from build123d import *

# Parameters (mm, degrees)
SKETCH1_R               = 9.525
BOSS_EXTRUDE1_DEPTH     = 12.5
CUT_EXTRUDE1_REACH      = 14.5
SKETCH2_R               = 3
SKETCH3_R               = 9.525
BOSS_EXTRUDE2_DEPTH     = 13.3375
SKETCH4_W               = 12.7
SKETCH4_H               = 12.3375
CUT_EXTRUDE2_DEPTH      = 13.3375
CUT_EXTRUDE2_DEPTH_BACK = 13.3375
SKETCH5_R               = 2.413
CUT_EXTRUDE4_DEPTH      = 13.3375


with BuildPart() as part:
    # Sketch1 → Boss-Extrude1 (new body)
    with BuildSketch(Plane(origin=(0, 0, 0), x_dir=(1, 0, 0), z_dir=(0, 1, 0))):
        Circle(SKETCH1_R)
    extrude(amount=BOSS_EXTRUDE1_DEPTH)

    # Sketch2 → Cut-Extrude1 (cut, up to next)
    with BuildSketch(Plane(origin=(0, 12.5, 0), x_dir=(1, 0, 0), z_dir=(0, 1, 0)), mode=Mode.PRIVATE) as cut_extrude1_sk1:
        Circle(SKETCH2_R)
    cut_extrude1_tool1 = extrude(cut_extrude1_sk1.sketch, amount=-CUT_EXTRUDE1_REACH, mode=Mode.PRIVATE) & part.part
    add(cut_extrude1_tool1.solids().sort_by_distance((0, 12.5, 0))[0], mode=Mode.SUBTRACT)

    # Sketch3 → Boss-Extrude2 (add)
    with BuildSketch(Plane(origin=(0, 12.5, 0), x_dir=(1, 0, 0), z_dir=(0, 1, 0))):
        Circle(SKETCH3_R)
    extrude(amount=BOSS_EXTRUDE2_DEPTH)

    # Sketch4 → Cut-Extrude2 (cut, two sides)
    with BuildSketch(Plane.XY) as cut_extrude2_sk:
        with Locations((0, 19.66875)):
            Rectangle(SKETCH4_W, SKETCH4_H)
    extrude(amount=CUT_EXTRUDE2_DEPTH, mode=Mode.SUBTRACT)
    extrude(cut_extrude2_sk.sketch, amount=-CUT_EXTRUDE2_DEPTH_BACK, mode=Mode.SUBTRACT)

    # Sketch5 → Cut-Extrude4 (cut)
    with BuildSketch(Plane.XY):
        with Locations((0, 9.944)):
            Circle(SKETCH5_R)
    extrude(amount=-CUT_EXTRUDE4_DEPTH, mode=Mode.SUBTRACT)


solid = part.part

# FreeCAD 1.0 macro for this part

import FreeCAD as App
import Part
import Sketcher
Q = App.Units.Quantity


def add_polygon(sketch, points):
    """Adds a closed chain of lines whose ends are joined by coincident constraints."""
    first, n = sketch.GeometryCount, len(points)
    for a, b in zip(points, points[1:] + points[:1]):
        sketch.addGeometry(Part.LineSegment(App.Vector(*a, 0), App.Vector(*b, 0)), False)
    for i in range(n):
        sketch.addConstraint(Sketcher.Constraint("Coincident", first + i, 2, first + (i + 1) % n, 1))

doc = App.newDocument("Part")
body = doc.addObject("PartDesign::Body", "Body")

sketch1 = body.newObject("Sketcher::SketchObject", "Sketch")
sketch1.AttachmentSupport = (doc.getObject("XZ_Plane"), [""])
sketch1.MapMode = "FlatFace"
sketch1.addGeometry(Part.Circle(App.Vector(0, 0, 0), App.Vector(0, 0, 1), 9.525), False)
sketch1.addConstraint([
    Sketcher.Constraint("Coincident", 0, 3, -1, 1),
    Sketcher.Constraint("Diameter", 0, Q("0.75 in")),
])
pad1 = body.newObject("PartDesign::Pad", "Pad")
pad1.Profile = sketch1
pad1.Length = 12.5
pad1.Reversed = True

sketch2 = body.newObject("Sketcher::SketchObject", "Sketch001")
sketch2.AttachmentSupport = (doc.getObject("XZ_Plane"), [""])
sketch2.MapMode = "FlatFace"
sketch2.AttachmentOffset = App.Placement(App.Vector(0, 0, -12.5), App.Rotation())
sketch2.addGeometry(Part.Circle(App.Vector(0, 0, 0), App.Vector(0, 0, 1), 3), False)
sketch2.addConstraint([
    Sketcher.Constraint("Coincident", 0, 3, -1, 1),
    Sketcher.Constraint("Diameter", 0, 6.0),
])
pocket1 = body.newObject("PartDesign::Pocket", "Pocket")
pocket1.Profile = sketch2
pocket1.Type = "UpToFirst"
pocket1.Reversed = True

sketch3 = body.newObject("Sketcher::SketchObject", "Sketch002")
sketch3.AttachmentSupport = (doc.getObject("XZ_Plane"), [""])
sketch3.MapMode = "FlatFace"
sketch3.AttachmentOffset = App.Placement(App.Vector(0, 0, -12.5), App.Rotation())
sketch3.addGeometry(Part.Circle(App.Vector(0, 0, 0), App.Vector(0, 0, 1), 9.525), False)
sketch3.addConstraint([
    Sketcher.Constraint("Coincident", 0, 3, -1, 1),
    Sketcher.Constraint("Diameter", 0, Q("0.75 in")),
])
pad2 = body.newObject("PartDesign::Pad", "Pad001")
pad2.Profile = sketch3
pad2.Length = 13.3375
pad2.Reversed = True

sketch4 = body.newObject("Sketcher::SketchObject", "Sketch003")
sketch4.AttachmentSupport = (doc.getObject("XY_Plane"), [""])
sketch4.MapMode = "FlatFace"
add_polygon(sketch4, [(-6.35, 25.8375), (-6.35, 13.5), (6.35, 13.5), (6.35, 25.8375)])
sketch4.addConstraint([
    Sketcher.Constraint("Vertical", 0),
    Sketcher.Constraint("Horizontal", 1),
    Sketcher.Constraint("Vertical", 2),
    Sketcher.Constraint("Horizontal", 3),
    Sketcher.Constraint("DistanceX", 1, 1, 1, 2, Q("0.5 in")),
    Sketcher.Constraint("DistanceX", 0, 2, -1, 1, Q("0.25 in")),
    Sketcher.Constraint("DistanceY", 0, 2, 0, 1, 12.3375),
    Sketcher.Constraint("DistanceY", -1, 1, 0, 2, 13.5),
])
pocket2 = body.newObject("PartDesign::Pocket", "Pocket001")
pocket2.Profile = sketch4
pocket2.Type = "ThroughAll"
pocket2.Midplane = True

sketch5 = body.newObject("Sketcher::SketchObject", "Sketch004")
sketch5.AttachmentSupport = (doc.getObject("XY_Plane"), [""])
sketch5.MapMode = "FlatFace"
sketch5.addGeometry(Part.Circle(App.Vector(0, 9.944, 0), App.Vector(0, 0, 1), 2.413), False)
sketch5.addConstraint([
    Sketcher.Constraint("PointOnObject", 0, 3, -2),
    Sketcher.Constraint("Diameter", 0, Q("0.19 in")),
    Sketcher.Constraint("DistanceY", -1, 1, 0, 3, 9.944),
])
pocket3 = body.newObject("PartDesign::Pocket", "Pocket002")
pocket3.Profile = sketch5
pocket3.Length = 13.3375

doc.recompute()
